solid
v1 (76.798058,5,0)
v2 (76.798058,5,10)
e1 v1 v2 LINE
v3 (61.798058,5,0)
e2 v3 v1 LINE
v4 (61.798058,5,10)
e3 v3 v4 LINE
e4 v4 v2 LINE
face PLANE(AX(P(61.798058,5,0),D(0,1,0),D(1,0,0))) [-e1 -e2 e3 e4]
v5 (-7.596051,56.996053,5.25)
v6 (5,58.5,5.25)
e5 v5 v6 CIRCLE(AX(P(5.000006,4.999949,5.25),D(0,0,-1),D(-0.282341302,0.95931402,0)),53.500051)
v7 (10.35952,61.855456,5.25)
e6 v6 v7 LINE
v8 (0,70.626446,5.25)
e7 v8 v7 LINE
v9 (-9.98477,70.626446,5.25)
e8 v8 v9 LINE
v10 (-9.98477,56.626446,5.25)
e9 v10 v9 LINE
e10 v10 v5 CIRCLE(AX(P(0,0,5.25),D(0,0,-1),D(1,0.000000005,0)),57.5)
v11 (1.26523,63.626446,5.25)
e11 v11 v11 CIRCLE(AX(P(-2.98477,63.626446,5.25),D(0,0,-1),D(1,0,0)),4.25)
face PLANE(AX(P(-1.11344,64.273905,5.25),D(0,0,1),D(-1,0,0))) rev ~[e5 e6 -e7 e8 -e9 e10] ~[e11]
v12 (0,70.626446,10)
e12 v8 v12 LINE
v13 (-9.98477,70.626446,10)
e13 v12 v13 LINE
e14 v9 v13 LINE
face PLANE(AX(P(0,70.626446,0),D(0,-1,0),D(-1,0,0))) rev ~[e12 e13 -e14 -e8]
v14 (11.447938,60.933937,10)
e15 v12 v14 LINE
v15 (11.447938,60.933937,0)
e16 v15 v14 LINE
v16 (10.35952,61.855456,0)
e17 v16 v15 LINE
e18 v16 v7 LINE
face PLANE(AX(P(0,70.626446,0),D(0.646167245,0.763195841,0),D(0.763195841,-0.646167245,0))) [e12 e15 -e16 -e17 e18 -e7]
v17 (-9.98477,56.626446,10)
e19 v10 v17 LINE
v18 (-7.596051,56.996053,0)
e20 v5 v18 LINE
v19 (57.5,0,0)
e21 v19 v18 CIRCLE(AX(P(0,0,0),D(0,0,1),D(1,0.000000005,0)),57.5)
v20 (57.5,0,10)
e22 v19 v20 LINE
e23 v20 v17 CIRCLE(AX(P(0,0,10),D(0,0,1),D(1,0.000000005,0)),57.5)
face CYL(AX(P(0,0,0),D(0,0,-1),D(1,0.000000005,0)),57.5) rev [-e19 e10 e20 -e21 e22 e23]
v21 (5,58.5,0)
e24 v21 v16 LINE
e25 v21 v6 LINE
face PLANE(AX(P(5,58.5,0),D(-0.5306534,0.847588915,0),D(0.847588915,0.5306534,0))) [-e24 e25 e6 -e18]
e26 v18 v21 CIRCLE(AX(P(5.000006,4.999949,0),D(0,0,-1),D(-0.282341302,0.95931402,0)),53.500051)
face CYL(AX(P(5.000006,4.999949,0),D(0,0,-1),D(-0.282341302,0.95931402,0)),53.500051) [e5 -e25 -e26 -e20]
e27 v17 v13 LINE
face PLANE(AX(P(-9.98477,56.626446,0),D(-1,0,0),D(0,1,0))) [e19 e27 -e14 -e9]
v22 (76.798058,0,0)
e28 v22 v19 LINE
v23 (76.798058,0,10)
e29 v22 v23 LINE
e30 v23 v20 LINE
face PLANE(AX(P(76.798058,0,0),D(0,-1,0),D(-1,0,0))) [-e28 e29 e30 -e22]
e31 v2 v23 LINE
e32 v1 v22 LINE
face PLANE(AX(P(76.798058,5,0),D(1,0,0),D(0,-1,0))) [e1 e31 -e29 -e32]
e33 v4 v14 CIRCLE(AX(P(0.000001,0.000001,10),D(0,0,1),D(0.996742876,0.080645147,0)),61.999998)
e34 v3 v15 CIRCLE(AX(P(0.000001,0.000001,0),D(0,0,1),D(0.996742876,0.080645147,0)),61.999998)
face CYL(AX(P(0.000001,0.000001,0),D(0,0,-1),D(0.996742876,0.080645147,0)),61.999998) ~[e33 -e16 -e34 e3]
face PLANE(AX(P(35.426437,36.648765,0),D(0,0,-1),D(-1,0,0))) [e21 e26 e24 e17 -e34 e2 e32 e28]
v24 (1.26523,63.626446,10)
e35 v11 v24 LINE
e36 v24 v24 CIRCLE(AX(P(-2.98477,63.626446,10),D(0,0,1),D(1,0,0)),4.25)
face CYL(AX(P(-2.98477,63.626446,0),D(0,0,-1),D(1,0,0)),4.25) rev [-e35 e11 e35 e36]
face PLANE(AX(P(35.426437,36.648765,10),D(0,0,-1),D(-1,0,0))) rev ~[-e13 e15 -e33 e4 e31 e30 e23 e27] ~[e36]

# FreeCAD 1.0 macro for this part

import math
import FreeCAD as App
import Part
import Sketcher
from FreeCAD import Vector
Q = App.Units.Quantity

doc = App.newDocument("Part")
body = doc.addObject("PartDesign::Body", "Body")

# Sketch on XY plane
sketch1 = body.newObject("Sketcher::SketchObject", "Sketch")
sketch1.AttachmentSupport = (doc.getObject("XY_Plane"), [""])
sketch1.MapMode = "FlatFace"
sketch1.addGeometry(Part.ArcOfCircle(Part.Circle(Vector(0, 0, 0), Vector(0, 0, 1), 57.5), math.radians(0), math.radians(100)), False)
sketch1.addGeometry(Part.LineSegment(Vector(57.5, 0, 0), Vector(76.8, 0, 0)), False)
sketch1.addGeometry(Part.LineSegment(Vector(76.8, 0, 0), Vector(76.8, 5, 0)), False)
sketch1.addGeometry(Part.LineSegment(Vector(76.8, 5, 0), Vector(61.8, 5, 0)), False)
sketch1.addGeometry(Part.ArcOfCircle(Part.Circle(Vector(0, 0, 0), Vector(0, 0, 1), 62), math.radians(5), math.radians(79)), False)
sketch1.addGeometry(Part.LineSegment(Vector(11.4, 60.9, 0), Vector(0, 70.6, 0)), False)
sketch1.addGeometry(Part.LineSegment(Vector(0, 70.6, 0), Vector(-10, 70.6, 0)), False)
sketch1.addGeometry(Part.LineSegment(Vector(-10, 70.6, 0), Vector(-10, 56.6, 0)), False)
sketch1.addGeometry(Part.Circle(Vector(-3, 63.6, 0), Vector(0, 0, 1), 4.2), False)
sketch1.addConstraint(Sketcher.Constraint("Coincident", 0, 1, 1, 1))
sketch1.addConstraint(Sketcher.Constraint("Coincident", 1, 2, 2, 1))
sketch1.addConstraint(Sketcher.Constraint("Coincident", 2, 2, 3, 1))
sketch1.addConstraint(Sketcher.Constraint("Coincident", 3, 2, 4, 1))
sketch1.addConstraint(Sketcher.Constraint("Coincident", 4, 2, 5, 1))
sketch1.addConstraint(Sketcher.Constraint("Coincident", 5, 2, 6, 1))
sketch1.addConstraint(Sketcher.Constraint("Coincident", 6, 2, 7, 1))
sketch1.addConstraint(Sketcher.Constraint("Coincident", 7, 2, 0, 2))
sketch1.addConstraint(Sketcher.Constraint("Horizontal", 1))
sketch1.addConstraint(Sketcher.Constraint("Vertical", 2))
sketch1.addConstraint(Sketcher.Constraint("Horizontal", 3))
sketch1.addConstraint(Sketcher.Constraint("Horizontal", 6))
sketch1.addConstraint(Sketcher.Constraint("Vertical", 7))
sketch1.addConstraint(Sketcher.Constraint("Coincident", 0, 3, -1, 1))
sketch1.addConstraint(Sketcher.Constraint("Coincident", 4, 3, -1, 1))
sketch1.addConstraint(Sketcher.Constraint("PointOnObject", 0, 1, -1))
sketch1.addConstraint(Sketcher.Constraint("PointOnObject", 5, 2, -2))
sketch1.addConstraint(Sketcher.Constraint("Radius", 4, Q("61.999998 mm")))
sketch1.addConstraint(Sketcher.Constraint("Diameter", 8, Q("8.5 mm")))
sketch1.addConstraint(Sketcher.Constraint("Radius", 0, Q("57.5 mm")))
sketch1.addConstraint(Sketcher.Constraint("DistanceX", 3, 2, 3, 1, Q("15 mm")))
sketch1.addConstraint(Sketcher.Constraint("DistanceY", 2, 1, 2, 2, Q("5 mm")))
sketch1.addConstraint(Sketcher.Constraint("DistanceY", 7, 2, 7, 1, Q("14 mm")))
sketch1.addConstraint(Sketcher.Constraint("Distance", 5, Q("15.000001 mm")))
sketch1.addConstraint(Sketcher.Constraint("DistanceY", 8, 3, 5, 2, Q("7 mm")))
sketch1.addConstraint(Sketcher.Constraint("DistanceX", 6, 2, 8, 3, Q("7 mm")))
sketch1.addConstraint(Sketcher.Constraint("DistanceX", 6, 2, 6, 1, Q("9.98477 mm")))
pad1 = body.newObject("PartDesign::Pad", "Pad")
pad1.Profile = sketch1
pad1.Length = 10

# Sketch on XY plane
sketch2 = body.newObject("Sketcher::SketchObject", "Sketch001")
sketch2.AttachmentSupport = (doc.getObject("XY_Plane"), [""])
sketch2.MapMode = "FlatFace"
sketch2.addGeometry(Part.ArcOfCircle(Part.Circle(Vector(5, 5, 0), Vector(0, 0, 1), 54), math.radians(90), math.radians(106.4)), False)
sketch2.addGeometry(Part.LineSegment(Vector(-10, 56, 0), Vector(-10, 71, 0)), False)
sketch2.addGeometry(Part.LineSegment(Vector(-10, 71, 0), Vector(5, 71, 0)), False)
sketch2.addGeometry(Part.LineSegment(Vector(5, 71, 0), Vector(12, 63, 0)), False)
sketch2.addGeometry(Part.LineSegment(Vector(12, 63, 0), Vector(5, 58, 0)), False)
sketch2.addConstraint(Sketcher.Constraint("Coincident", 0, 2, 1, 1))
sketch2.addConstraint(Sketcher.Constraint("Coincident", 1, 2, 2, 1))
sketch2.addConstraint(Sketcher.Constraint("Coincident", 2, 2, 3, 1))
sketch2.addConstraint(Sketcher.Constraint("Coincident", 3, 2, 4, 1))
sketch2.addConstraint(Sketcher.Constraint("Coincident", 4, 2, 0, 1))
sketch2.addConstraint(Sketcher.Constraint("Vertical", 1))
sketch2.addConstraint(Sketcher.Constraint("Horizontal", 2))
sketch2.addConstraint(Sketcher.Constraint("Equal", 2, 1))
sketch2.addConstraint(Sketcher.Constraint("DistanceX", 2, 1, 2, 2, Q("15 mm")))
sketch2.addConstraint(Sketcher.Constraint("Distance", 3, Q("11 mm")))
sketch2.addConstraint(Sketcher.Constraint("Distance", 4, Q("8 mm")))
sketch2.addConstraint(Sketcher.Constraint("DistanceX", -1, 1, 4, 2, Q("5 mm")))
sketch2.addConstraint(Sketcher.Constraint("DistanceY", -1, 1, 4, 2, Q("58.5 mm")))
sketch2.addConstraint(Sketcher.Constraint("Radius", 0, Q("53.500051 mm")))
sketch2.addConstraint(Sketcher.Constraint("DistanceY", -1, 1, 0, 2, Q("56.323298 mm")))
sketch2.addConstraint(Sketcher.Constraint("DistanceX", 0, 2, -1, 1, Q("10.105268 mm")))
pocket1 = body.newObject("PartDesign::Pocket", "Pocket")
pocket1.Profile = sketch2
pocket1.Length = 5.25
pocket1.Reversed = True

doc.recompute()
